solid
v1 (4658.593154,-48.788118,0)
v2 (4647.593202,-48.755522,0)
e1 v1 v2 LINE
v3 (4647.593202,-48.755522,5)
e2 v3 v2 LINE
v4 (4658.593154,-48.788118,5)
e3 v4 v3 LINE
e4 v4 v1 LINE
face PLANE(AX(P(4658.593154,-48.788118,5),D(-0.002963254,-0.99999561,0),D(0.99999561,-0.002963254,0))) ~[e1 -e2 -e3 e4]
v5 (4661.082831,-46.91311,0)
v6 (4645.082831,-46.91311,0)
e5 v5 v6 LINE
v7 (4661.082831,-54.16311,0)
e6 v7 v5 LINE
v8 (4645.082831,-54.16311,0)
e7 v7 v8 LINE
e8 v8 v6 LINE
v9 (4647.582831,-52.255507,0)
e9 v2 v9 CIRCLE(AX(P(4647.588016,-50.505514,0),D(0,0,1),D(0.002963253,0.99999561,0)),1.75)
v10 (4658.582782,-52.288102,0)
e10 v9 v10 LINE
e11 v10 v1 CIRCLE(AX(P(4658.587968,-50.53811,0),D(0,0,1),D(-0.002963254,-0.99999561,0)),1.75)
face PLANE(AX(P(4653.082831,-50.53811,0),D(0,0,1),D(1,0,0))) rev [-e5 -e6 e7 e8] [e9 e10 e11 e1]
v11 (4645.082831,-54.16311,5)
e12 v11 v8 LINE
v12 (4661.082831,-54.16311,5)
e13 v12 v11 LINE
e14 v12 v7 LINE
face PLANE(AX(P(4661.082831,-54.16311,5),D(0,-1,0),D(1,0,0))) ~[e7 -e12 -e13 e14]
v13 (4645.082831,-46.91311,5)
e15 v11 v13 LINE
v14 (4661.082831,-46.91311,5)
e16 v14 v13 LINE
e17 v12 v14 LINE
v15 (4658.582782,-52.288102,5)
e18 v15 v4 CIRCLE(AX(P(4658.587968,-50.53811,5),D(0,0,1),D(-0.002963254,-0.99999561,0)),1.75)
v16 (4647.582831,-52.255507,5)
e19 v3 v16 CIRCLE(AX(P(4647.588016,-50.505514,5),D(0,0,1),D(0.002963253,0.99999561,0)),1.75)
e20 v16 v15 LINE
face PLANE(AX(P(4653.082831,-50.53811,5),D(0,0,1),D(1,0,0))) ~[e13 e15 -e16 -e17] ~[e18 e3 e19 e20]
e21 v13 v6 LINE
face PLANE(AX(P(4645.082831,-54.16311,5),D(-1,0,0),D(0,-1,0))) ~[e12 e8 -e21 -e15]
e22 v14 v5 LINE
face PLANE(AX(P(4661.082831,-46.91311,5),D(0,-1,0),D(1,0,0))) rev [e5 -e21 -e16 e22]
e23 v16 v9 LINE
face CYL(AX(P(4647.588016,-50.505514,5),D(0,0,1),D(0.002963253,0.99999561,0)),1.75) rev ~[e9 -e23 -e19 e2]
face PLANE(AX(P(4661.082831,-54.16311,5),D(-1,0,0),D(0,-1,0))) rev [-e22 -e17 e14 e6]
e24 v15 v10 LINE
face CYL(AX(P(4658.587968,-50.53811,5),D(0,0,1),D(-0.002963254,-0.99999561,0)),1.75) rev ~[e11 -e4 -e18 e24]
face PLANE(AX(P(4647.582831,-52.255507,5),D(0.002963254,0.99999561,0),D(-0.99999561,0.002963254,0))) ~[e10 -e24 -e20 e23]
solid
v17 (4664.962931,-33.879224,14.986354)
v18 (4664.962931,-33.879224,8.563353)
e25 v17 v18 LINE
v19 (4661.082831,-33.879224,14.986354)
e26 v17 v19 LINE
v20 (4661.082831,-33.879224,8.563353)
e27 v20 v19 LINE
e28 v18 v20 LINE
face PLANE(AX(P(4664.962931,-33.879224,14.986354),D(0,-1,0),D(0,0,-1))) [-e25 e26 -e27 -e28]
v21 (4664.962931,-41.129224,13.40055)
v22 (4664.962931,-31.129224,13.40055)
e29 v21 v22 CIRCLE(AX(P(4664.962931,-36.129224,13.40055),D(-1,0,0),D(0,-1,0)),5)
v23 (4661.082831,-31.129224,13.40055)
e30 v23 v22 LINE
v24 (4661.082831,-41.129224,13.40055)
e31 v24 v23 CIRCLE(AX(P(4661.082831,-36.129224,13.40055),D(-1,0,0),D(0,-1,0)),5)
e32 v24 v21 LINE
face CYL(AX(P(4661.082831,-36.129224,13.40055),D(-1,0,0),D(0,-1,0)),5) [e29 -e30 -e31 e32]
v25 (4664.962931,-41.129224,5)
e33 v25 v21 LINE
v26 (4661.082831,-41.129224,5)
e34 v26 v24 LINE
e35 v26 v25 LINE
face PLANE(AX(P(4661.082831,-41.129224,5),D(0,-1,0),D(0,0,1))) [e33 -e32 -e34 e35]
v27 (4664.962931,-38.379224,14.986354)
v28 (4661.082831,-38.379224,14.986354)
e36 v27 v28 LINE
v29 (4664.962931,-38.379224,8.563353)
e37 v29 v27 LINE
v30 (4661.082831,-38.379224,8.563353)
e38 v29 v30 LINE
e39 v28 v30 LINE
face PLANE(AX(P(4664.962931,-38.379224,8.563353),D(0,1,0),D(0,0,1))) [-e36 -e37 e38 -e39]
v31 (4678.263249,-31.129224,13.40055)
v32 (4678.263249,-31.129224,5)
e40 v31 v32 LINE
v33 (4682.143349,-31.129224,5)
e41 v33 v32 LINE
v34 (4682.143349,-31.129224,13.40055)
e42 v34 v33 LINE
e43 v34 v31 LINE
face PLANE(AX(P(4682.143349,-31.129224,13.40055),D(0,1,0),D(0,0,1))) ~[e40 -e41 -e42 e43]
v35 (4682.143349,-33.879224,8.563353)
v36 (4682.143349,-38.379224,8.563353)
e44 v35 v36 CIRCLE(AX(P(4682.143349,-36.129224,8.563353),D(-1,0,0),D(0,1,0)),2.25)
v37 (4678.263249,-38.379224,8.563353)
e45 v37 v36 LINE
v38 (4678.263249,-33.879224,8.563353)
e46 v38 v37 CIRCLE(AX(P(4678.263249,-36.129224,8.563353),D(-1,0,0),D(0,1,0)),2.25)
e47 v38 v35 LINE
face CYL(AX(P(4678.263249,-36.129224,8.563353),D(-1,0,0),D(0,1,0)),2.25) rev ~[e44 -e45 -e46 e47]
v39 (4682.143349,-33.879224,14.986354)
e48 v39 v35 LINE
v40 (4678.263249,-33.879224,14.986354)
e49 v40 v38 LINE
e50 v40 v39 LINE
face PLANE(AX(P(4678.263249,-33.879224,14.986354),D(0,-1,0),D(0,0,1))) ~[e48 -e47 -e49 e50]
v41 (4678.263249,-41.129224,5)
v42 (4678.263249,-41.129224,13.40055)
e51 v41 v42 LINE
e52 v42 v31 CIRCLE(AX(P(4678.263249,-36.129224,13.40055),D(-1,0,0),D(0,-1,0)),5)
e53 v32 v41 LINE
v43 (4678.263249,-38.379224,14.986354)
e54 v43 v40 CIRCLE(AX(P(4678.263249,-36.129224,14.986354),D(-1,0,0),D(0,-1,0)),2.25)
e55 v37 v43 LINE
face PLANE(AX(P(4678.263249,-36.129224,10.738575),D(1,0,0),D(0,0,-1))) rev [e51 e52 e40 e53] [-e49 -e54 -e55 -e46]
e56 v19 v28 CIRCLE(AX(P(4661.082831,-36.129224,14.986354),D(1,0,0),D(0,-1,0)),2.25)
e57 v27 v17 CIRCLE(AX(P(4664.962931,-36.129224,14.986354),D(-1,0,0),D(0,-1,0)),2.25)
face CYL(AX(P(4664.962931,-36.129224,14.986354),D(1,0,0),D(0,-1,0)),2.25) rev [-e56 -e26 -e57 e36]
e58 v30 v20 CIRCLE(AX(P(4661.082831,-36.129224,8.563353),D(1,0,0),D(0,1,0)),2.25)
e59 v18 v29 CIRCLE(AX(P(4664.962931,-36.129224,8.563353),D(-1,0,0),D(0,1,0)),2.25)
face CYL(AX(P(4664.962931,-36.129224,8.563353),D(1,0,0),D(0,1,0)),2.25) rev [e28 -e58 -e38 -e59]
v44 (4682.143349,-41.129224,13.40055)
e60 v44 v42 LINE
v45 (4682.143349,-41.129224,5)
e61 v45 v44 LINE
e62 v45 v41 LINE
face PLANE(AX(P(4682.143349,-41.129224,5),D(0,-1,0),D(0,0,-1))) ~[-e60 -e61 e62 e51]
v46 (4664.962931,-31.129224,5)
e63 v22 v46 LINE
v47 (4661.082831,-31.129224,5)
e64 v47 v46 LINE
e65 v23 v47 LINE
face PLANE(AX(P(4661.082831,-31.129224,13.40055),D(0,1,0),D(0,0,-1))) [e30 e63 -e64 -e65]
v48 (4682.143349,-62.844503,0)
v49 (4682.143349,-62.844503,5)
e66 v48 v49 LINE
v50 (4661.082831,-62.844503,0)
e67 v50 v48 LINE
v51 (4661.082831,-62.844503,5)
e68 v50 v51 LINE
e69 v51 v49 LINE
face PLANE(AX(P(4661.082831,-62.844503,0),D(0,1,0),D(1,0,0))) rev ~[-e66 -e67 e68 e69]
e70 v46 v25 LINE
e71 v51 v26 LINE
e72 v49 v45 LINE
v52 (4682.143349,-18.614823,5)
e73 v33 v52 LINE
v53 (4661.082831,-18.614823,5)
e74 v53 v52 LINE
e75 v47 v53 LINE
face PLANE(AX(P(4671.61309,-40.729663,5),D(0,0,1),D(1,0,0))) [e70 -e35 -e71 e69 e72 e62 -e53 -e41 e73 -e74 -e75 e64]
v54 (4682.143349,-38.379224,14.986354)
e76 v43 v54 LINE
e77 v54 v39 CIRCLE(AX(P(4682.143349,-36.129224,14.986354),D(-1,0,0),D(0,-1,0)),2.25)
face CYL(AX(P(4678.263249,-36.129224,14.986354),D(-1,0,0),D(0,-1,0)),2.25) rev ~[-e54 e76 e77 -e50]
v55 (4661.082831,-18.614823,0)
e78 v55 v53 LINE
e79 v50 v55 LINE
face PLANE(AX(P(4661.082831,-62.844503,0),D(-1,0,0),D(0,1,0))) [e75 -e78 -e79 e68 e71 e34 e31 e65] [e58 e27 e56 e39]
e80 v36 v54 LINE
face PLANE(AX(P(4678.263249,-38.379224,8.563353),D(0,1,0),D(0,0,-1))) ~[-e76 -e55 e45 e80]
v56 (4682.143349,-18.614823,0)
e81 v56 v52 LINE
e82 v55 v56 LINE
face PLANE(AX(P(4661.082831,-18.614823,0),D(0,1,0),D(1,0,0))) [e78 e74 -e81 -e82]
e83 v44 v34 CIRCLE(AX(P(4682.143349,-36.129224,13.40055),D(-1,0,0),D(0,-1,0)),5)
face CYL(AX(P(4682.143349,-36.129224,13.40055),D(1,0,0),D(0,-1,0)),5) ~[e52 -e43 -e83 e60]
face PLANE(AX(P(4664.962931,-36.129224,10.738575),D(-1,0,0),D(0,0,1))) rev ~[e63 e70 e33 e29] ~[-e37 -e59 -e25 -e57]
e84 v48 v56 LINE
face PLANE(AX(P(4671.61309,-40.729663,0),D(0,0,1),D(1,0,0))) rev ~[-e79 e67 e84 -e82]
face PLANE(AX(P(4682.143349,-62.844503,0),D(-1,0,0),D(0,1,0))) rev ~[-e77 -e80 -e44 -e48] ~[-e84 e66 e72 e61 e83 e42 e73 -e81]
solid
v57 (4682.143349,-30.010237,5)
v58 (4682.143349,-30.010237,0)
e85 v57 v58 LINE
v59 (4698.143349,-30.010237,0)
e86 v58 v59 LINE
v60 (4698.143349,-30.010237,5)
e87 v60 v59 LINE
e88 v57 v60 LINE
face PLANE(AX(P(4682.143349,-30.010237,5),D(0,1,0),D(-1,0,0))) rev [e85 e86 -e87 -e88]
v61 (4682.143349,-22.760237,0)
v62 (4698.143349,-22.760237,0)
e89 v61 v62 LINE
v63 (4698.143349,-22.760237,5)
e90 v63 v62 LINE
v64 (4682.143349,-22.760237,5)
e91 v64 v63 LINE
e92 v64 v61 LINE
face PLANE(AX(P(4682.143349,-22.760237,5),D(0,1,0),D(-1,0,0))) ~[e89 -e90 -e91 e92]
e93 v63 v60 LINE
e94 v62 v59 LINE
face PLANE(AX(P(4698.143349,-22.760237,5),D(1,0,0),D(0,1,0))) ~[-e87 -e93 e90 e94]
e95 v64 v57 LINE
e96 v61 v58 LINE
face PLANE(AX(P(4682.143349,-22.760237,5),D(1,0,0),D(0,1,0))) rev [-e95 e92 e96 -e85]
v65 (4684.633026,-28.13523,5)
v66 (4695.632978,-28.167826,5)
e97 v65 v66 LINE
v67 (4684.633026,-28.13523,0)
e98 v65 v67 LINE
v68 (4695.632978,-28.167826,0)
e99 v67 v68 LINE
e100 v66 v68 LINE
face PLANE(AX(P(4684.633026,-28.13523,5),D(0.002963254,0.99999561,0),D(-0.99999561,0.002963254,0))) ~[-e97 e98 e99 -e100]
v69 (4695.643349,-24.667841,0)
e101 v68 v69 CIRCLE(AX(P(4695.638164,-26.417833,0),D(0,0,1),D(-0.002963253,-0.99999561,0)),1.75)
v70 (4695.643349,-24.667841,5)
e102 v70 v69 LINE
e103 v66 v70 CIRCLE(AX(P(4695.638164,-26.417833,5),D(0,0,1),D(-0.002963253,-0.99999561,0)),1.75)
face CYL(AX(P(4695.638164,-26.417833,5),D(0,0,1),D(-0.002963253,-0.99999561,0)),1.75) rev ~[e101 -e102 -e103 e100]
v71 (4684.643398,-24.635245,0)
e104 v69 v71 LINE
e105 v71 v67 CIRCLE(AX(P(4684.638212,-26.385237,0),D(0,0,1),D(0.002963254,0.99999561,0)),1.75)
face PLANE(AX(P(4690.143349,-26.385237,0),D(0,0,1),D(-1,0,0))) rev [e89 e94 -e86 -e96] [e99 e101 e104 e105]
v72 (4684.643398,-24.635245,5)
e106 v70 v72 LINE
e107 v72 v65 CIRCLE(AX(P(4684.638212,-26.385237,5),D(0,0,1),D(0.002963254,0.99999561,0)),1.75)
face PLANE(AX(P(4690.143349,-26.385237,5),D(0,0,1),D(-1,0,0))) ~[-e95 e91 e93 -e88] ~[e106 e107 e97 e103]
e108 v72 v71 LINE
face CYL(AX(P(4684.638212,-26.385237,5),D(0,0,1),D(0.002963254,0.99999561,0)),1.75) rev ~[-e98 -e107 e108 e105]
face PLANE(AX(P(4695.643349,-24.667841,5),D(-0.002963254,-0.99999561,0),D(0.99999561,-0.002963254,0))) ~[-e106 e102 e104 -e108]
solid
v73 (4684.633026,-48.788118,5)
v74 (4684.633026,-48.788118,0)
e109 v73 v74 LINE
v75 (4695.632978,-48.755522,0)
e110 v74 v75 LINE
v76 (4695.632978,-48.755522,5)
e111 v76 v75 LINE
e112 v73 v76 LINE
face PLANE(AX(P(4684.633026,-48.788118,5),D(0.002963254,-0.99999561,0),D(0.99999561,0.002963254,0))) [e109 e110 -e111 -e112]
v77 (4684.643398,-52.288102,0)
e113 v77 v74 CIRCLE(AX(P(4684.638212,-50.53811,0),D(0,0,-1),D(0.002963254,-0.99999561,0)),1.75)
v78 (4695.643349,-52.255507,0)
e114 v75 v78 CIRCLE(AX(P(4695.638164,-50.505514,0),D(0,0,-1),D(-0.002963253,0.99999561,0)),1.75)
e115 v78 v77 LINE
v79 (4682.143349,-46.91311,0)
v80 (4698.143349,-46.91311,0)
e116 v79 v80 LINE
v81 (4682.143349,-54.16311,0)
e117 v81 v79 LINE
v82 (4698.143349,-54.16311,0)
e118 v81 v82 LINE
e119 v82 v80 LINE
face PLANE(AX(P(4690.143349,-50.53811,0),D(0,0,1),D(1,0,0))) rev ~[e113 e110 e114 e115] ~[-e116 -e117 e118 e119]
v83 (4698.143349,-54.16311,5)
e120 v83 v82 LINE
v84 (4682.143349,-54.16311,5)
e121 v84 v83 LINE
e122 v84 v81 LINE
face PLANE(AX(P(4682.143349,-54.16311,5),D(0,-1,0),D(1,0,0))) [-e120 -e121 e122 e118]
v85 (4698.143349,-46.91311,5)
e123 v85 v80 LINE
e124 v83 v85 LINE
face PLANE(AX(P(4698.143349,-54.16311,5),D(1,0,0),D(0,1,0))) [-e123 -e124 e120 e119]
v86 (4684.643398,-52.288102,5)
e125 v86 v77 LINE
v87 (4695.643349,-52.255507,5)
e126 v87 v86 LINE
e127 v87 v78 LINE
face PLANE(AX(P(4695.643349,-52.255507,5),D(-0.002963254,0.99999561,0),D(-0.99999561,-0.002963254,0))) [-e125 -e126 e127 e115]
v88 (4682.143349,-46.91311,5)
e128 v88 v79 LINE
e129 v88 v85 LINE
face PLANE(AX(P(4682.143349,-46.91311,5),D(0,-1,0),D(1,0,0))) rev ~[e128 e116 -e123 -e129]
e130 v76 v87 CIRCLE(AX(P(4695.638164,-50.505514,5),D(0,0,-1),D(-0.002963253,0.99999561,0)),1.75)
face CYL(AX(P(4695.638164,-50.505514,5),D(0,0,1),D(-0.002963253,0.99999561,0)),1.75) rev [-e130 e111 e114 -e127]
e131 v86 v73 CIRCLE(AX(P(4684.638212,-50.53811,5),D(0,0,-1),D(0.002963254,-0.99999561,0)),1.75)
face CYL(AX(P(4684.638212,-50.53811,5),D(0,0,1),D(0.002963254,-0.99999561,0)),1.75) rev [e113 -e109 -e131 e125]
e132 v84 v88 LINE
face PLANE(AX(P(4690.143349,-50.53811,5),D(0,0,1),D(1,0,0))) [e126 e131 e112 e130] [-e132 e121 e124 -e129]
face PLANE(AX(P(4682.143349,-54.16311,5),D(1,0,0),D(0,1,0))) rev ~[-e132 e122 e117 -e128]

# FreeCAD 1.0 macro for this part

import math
import FreeCAD as App
import Part
import Sketcher
Q = App.Units.Quantity

doc = App.newDocument("Part")
body = doc.addObject("PartDesign::Body", "Body")

sketch1 = body.newObject("Sketcher::SketchObject", "Sketch")
sketch1.AttachmentSupport = (doc.getObject("XY_Plane"), [""])
sketch1.MapMode = "FlatFace"
sketch1.addGeometry([
    Part.LineSegment(App.Vector(4661, -19, 0), App.Vector(4661, -63, 0)),
    Part.LineSegment(App.Vector(4661, -63, 0), App.Vector(4682, -63, 0)),
    Part.LineSegment(App.Vector(4682, -63, 0), App.Vector(4682, -19, 0)),
    Part.LineSegment(App.Vector(4682, -19, 0), App.Vector(4661, -19, 0)),
], False)
sketch1.addConstraint([
    Sketcher.Constraint("Coincident", 0, 2, 1, 1),
    Sketcher.Constraint("Coincident", 1, 2, 2, 1),
    Sketcher.Constraint("Coincident", 2, 2, 3, 1),
    Sketcher.Constraint("Coincident", 3, 2, 0, 1),
    Sketcher.Constraint("Vertical", 0),
    Sketcher.Constraint("Horizontal", 1),
    Sketcher.Constraint("Vertical", 2),
    Sketcher.Constraint("Horizontal", 3),
    Sketcher.Constraint("DistanceX", 1, 1, 1, 2, Q("21.060519 mm")),
    Sketcher.Constraint("DistanceY", 0, 2, 0, 1, Q("44.229681 mm")),
    Sketcher.Constraint("DistanceX", -1, 1, 0, 2, Q("4661.082831 mm")),
    Sketcher.Constraint("DistanceY", 0, 2, -1, 1, Q("62.844503 mm")),
])
pad1 = body.newObject("PartDesign::Pad", "Pad")
pad1.Profile = sketch1
pad1.Length = 5

sketch2 = body.newObject("Sketcher::SketchObject", "Sketch001")
sketch2.AttachmentSupport = (doc.getObject("YZ_Plane"), [""])
sketch2.MapMode = "FlatFace"
sketch2.AttachmentOffset = App.Placement(App.Vector(0, 0, 4661.082831), App.Rotation())
sketch2.addGeometry([
    Part.LineSegment(App.Vector(-31, 13, 0), App.Vector(-31, 5, 0)),
    Part.LineSegment(App.Vector(-31, 5, 0), App.Vector(-41, 5, 0)),
    Part.LineSegment(App.Vector(-41, 5, 0), App.Vector(-41, 13, 0)),
    Part.ArcOfCircle(Part.Circle(App.Vector(-36, 13, 0), App.Vector(0, 0, 1), 5), math.radians(0), math.radians(180)),
], False)
sketch2.addConstraint([
    Sketcher.Constraint("Coincident", 0, 2, 1, 1),
    Sketcher.Constraint("Coincident", 1, 2, 2, 1),
    Sketcher.Constraint("Tangent", 2, 2, 3, 2),
    Sketcher.Constraint("Tangent", 3, 1, 0, 1),
    Sketcher.Constraint("Vertical", 0),
    Sketcher.Constraint("Horizontal", 1),
    Sketcher.Constraint("Vertical", 2),
    Sketcher.Constraint("Radius", 3, Q("5 mm")),
    Sketcher.Constraint("DistanceY", -1, 1, 0, 2, Q("5 mm")),
    Sketcher.Constraint("DistanceY", 0, 2, 0, 1, Q("8.40055 mm")),
    Sketcher.Constraint("DistanceX", 3, 3, -1, 1, Q("36.129224 mm")),
])
pad2 = body.newObject("PartDesign::Pad", "Pad001")
pad2.Profile = sketch2
pad2.Length = 3.8801

sketch3 = body.newObject("Sketcher::SketchObject", "Sketch002")
sketch3.AttachmentSupport = (doc.getObject("YZ_Plane"), [""])
sketch3.MapMode = "FlatFace"
sketch3.AttachmentOffset = App.Placement(App.Vector(0, 0, 4664.962931), App.Rotation())
sketch3.addGeometry([
    Part.LineSegment(App.Vector(-33.9, 8.6, 0), App.Vector(-33.9, 15, 0)),
    Part.ArcOfCircle(Part.Circle(App.Vector(-36.1, 15, 0), App.Vector(0, 0, 1), 2.2), math.radians(0), math.radians(180)),
    Part.LineSegment(App.Vector(-38.4, 15, 0), App.Vector(-38.4, 8.6, 0)),
    Part.ArcOfCircle(Part.Circle(App.Vector(-36.1, 8.6, 0), App.Vector(0, 0, 1), 2.2), math.radians(180), math.radians(360)),
], False)
sketch3.addConstraint([
    Sketcher.Constraint("Tangent", 0, 2, 1, 1),
    Sketcher.Constraint("Tangent", 1, 2, 2, 1),
    Sketcher.Constraint("Tangent", 2, 2, 3, 1),
    Sketcher.Constraint("Tangent", 3, 2, 0, 1),
    Sketcher.Constraint("Vertical", 0),
    Sketcher.Constraint("Vertical", 2),
    Sketcher.Constraint("Radius", 1, Q("2.25 mm")),
    Sketcher.Constraint("DistanceY", 0, 1, 0, 2, Q("6.423001 mm")),
    Sketcher.Constraint("DistanceX", 1, 3, -1, 1, Q("36.129224 mm")),
    Sketcher.Constraint("DistanceY", -1, 1, 1, 3, Q("14.986354 mm")),
])
pocket1 = body.newObject("PartDesign::Pocket", "Pocket")
pocket1.Profile = sketch3
pocket1.Length = 8
doc.recompute()

datumplane = body.newObject("PartDesign::Plane", "DatumPlane")
datumplane.AttachmentSupport = (doc.getObject("YZ_Plane"), [""])
datumplane.MapMode = "FlatFace"
datumplane.AttachmentOffset = App.Placement(App.Vector(0, 0, 4671.61309), App.Rotation())
mirrored = body.newObject("PartDesign::Mirrored", "Mirrored")
mirrored.Originals = [pad2, pocket1]
mirrored.MirrorPlane = (datumplane, [""])
body.Tip = mirrored
body2 = doc.addObject("PartDesign::Body", "Body001")

sketch4 = body2.newObject("Sketcher::SketchObject", "Sketch003")
sketch4.AttachmentSupport = (doc.getObject("XY_Plane001"), [""])
sketch4.MapMode = "FlatFace"
sketch4.AttachmentOffset = App.Placement(App.Vector(0, 0, 5), App.Rotation())
sketch4.addGeometry([
    Part.LineSegment(App.Vector(4682.1, -46.9, 0), App.Vector(4682.1, -54.2, 0)),
    Part.LineSegment(App.Vector(4682.1, -54.2, 0), App.Vector(4698.1, -54.2, 0)),
    Part.LineSegment(App.Vector(4698.1, -54.2, 0), App.Vector(4698.1, -46.9, 0)),
    Part.LineSegment(App.Vector(4698.1, -46.9, 0), App.Vector(4682.1, -46.9, 0)),
    Part.ArcOfCircle(Part.Circle(App.Vector(4695.6, -50.5, 0), App.Vector(0, 0, 1), 1.8), math.radians(-90), math.radians(90)),
    Part.LineSegment(App.Vector(4695.6, -52.3, 0), App.Vector(4684.6, -52.3, 0)),
    Part.ArcOfCircle(Part.Circle(App.Vector(4684.6, -50.5, 0), App.Vector(0, 0, 1), 1.8), math.radians(90), math.radians(270)),
    Part.LineSegment(App.Vector(4684.6, -48.8, 0), App.Vector(4695.6, -48.8, 0)),
], False)
sketch4.addConstraint([
    Sketcher.Constraint("Coincident", 0, 2, 1, 1),
    Sketcher.Constraint("Coincident", 1, 2, 2, 1),
    Sketcher.Constraint("Coincident", 2, 2, 3, 1),
    Sketcher.Constraint("Coincident", 3, 2, 0, 1),
    Sketcher.Constraint("Tangent", 4, 1, 5, 1),
    Sketcher.Constraint("Tangent", 5, 2, 6, 2),
    Sketcher.Constraint("Tangent", 6, 1, 7, 1),
    Sketcher.Constraint("Tangent", 7, 2, 4, 2),
    Sketcher.Constraint("Vertical", 0),
    Sketcher.Constraint("Horizontal", 1),
    Sketcher.Constraint("Vertical", 2),
    Sketcher.Constraint("Horizontal", 3),
    Sketcher.Constraint("Equal", 4, 6),
    Sketcher.Constraint("DistanceX", 1, 1, 1, 2, Q("16 mm")),
    Sketcher.Constraint("Radius", 4, Q("1.75 mm")),
    Sketcher.Constraint("Distance", 5, Q("11 mm")),
    Sketcher.Constraint("DistanceY", 0, 2, 0, 1, Q("7.25 mm")),
    Sketcher.Constraint("DistanceX", 4, 1, 1, 2, Q("2.5 mm")),
    Sketcher.Constraint("DistanceY", 0, 2, 6, 3, Q("3.625 mm")),
    Sketcher.Constraint("DistanceX", -1, 1, 6, 3, Q("4684.638212 mm")),
    Sketcher.Constraint("DistanceY", 6, 3, -1, 1, Q("50.53811 mm")),
    Sketcher.Constraint("DistanceX", -1, 1, 0, 2, Q("4682.143349 mm")),
])
pad3 = body2.newObject("PartDesign::Pad", "Pad002")
pad3.Profile = sketch4
pad3.Length = 5
pad3.Reversed = True
body3 = doc.addObject("PartDesign::Body", "Body002")
doc.recompute()

mirroring = doc.addObject("Part::Mirroring", "Mirroring")
mirroring.Source = body2
mirroring.Base = App.Vector(4671.61309, 0, 0)
mirroring.Normal = App.Vector(-1, 0, 0)
body3.BaseFeature = mirroring
doc.recompute()
body4 = doc.addObject("PartDesign::Body", "Body003")
doc.recompute()

mirroring2 = doc.addObject("Part::Mirroring", "Mirroring001")
mirroring2.Source = body3
mirroring2.Base = App.Vector(0, -38.461674, 0)
mirroring2.Normal = App.Vector(0, -1, 0)
body4.BaseFeature = mirroring2
doc.recompute()

sketch5 = body4.newObject("Sketcher::SketchObject", "Sketch004")
sketch5.AttachmentSupport = (doc.getObject("XY_Plane003"), [""])
sketch5.MapMode = "FlatFace"
sketch5.AttachmentOffset = App.Placement(App.Vector(0, 0, 5), App.Rotation())
sketch5.addGeometry([
    Part.LineSegment(App.Vector(4645, -23, 0), App.Vector(4645, -30, 0)),
    Part.LineSegment(App.Vector(4645, -30, 0), App.Vector(4661, -30, 0)),
    Part.LineSegment(App.Vector(4661, -30, 0), App.Vector(4661, -23, 0)),
    Part.LineSegment(App.Vector(4661, -23, 0), App.Vector(4645, -23, 0)),
], False)
sketch5.addConstraint([
    Sketcher.Constraint("Coincident", 0, 2, 1, 1),
    Sketcher.Constraint("Coincident", 1, 2, 2, 1),
    Sketcher.Constraint("Coincident", 2, 2, 3, 1),
    Sketcher.Constraint("Coincident", 3, 2, 0, 1),
    Sketcher.Constraint("Vertical", 0),
    Sketcher.Constraint("Horizontal", 1),
    Sketcher.Constraint("Vertical", 2),
    Sketcher.Constraint("Horizontal", 3),
    Sketcher.Constraint("DistanceX", 1, 1, 1, 2, Q("16 mm")),
    Sketcher.Constraint("DistanceY", 0, 2, 0, 1, Q("7.25 mm")),
    Sketcher.Constraint("DistanceX", -1, 1, 0, 2, Q("4645.082831 mm")),
    Sketcher.Constraint("DistanceY", 0, 2, -1, 1, Q("30.010237 mm")),
])
pocket2 = body4.newObject("PartDesign::Pocket", "Pocket001")
pocket2.Profile = sketch5
pocket2.Length = 5
body5 = doc.addObject("PartDesign::Body", "Body004")
doc.recompute()

mirroring3 = doc.addObject("Part::Mirroring", "Mirroring002")
mirroring3.Source = body2
mirroring3.Base = App.Vector(0, -38.461674, 0)
mirroring3.Normal = App.Vector(0, -1, 0)
body5.BaseFeature = mirroring3
doc.recompute()
mirroring.Visibility = False
mirroring2.Visibility = False
mirroring3.Visibility = False

doc.recompute()
